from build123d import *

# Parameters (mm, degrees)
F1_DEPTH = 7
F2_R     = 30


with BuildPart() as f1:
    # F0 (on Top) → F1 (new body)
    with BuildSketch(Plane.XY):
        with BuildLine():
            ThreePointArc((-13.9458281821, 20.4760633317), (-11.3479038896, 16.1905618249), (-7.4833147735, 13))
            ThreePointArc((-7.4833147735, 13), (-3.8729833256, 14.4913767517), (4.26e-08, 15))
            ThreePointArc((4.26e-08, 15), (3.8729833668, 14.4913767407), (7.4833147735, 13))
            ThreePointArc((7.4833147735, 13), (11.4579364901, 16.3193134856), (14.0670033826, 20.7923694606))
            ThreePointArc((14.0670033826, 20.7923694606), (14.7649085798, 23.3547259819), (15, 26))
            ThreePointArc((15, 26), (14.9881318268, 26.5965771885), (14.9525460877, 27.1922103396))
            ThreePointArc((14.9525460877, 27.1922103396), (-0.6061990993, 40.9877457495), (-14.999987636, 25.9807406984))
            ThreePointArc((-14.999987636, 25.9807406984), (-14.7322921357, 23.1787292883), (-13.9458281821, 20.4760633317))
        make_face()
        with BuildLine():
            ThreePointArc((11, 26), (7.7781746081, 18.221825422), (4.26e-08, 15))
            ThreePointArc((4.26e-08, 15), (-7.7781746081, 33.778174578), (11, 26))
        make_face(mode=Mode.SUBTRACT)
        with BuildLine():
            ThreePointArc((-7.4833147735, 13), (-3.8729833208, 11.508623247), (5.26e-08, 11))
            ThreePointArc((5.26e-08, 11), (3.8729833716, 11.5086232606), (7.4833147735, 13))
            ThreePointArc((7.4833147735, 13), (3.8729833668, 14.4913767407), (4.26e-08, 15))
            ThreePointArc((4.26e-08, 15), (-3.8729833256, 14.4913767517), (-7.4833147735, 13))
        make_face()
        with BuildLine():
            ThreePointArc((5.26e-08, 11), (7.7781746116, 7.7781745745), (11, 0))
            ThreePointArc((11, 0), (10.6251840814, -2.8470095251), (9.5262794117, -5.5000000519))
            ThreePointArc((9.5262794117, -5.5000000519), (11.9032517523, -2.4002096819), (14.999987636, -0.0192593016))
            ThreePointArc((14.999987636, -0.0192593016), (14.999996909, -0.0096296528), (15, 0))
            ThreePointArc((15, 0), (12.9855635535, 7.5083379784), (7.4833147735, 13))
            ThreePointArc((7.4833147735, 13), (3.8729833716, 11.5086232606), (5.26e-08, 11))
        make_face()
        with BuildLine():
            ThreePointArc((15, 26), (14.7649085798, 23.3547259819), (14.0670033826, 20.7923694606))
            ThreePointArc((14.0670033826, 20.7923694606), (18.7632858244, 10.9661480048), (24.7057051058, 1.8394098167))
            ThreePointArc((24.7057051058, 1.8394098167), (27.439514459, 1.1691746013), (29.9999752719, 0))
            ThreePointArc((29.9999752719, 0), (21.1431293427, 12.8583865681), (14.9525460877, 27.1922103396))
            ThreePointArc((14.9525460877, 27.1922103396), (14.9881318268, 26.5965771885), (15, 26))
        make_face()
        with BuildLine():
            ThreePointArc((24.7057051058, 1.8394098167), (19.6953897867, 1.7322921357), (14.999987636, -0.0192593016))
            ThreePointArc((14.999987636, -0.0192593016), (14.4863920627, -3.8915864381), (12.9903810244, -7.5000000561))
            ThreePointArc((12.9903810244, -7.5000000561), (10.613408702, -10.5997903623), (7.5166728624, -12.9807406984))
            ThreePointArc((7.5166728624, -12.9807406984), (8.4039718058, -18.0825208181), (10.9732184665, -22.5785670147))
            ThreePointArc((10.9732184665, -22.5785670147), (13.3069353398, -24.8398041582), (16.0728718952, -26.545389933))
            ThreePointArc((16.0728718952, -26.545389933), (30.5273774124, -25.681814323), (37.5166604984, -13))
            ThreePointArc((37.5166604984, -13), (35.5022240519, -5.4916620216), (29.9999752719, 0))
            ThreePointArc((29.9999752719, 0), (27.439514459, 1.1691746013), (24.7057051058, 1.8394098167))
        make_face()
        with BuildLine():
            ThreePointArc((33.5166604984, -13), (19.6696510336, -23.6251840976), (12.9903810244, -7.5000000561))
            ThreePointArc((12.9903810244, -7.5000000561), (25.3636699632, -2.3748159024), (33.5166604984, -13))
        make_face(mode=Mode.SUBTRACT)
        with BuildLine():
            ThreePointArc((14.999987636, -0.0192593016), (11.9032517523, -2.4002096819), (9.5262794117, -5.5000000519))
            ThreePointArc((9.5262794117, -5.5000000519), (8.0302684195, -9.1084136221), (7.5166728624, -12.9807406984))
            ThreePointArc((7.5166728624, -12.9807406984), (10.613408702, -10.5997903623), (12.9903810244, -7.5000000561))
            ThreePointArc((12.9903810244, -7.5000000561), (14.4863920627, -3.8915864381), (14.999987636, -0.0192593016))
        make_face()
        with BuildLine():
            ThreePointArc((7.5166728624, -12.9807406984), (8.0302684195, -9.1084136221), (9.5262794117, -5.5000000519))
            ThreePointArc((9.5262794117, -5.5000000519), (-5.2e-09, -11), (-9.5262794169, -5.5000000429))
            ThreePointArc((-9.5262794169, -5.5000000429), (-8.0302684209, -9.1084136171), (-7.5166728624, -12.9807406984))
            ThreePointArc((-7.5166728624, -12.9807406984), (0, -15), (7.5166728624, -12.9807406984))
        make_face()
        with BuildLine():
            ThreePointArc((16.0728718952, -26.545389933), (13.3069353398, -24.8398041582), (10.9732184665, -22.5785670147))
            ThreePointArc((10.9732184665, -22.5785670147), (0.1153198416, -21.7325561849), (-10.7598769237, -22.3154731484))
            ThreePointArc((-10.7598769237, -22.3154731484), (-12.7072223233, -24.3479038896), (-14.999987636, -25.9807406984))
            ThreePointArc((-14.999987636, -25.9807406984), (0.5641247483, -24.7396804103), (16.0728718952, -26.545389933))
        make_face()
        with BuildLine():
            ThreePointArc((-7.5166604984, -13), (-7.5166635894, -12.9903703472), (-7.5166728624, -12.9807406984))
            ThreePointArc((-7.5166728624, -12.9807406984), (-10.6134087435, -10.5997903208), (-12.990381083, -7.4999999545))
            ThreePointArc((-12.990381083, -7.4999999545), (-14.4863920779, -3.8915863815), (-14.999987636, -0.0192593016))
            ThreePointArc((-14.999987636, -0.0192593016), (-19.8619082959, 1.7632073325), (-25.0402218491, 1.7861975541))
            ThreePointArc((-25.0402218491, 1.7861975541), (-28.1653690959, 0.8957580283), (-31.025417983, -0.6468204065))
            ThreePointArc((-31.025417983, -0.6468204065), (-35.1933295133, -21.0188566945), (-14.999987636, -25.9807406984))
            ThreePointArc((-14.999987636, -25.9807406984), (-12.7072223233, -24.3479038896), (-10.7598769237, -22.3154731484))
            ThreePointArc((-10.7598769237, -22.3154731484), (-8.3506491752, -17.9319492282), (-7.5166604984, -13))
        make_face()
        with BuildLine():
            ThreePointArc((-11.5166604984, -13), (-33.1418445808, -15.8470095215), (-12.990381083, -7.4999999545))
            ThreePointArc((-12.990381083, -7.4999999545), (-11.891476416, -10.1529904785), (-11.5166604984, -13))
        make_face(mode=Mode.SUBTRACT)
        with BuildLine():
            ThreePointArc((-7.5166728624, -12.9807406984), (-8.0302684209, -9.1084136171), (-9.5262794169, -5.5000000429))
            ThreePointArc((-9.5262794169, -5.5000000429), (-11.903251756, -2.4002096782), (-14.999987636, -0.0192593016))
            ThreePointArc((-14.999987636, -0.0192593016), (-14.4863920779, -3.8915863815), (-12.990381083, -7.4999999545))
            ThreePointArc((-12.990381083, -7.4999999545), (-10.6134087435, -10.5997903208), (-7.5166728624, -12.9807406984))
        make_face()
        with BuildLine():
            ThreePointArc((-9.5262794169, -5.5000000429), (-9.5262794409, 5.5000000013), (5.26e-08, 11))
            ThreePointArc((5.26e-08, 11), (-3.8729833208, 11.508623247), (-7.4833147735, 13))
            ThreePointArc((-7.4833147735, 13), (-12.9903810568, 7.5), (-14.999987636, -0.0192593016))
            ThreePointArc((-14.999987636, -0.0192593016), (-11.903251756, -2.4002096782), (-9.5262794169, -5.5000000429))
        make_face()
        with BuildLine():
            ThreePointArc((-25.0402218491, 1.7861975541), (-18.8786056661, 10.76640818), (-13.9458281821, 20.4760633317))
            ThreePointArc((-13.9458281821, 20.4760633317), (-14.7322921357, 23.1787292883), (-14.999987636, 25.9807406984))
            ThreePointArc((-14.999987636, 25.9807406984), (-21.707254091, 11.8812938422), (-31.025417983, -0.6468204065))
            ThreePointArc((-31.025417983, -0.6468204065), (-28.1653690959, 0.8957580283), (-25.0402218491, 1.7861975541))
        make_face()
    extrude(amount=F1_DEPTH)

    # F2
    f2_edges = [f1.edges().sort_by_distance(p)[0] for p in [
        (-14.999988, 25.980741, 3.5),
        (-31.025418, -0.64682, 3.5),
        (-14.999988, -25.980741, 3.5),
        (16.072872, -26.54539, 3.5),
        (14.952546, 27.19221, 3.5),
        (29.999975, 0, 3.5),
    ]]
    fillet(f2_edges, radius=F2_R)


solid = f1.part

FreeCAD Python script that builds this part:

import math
import FreeCAD as App
import Part
import Sketcher

V = App.Vector
Q = App.Units.Quantity


def edges_at(feature, points):
    """Names of the edges that pass closest to the given points."""
    edges = feature.Shape.Edges
    near = lambda p: min(range(len(edges)), key=lambda i: edges[i].distToShape(Part.Vertex(*p))[0])
    return sorted({f"Edge{near(p) + 1}" for p in points})

doc = App.newDocument("Part")
body = doc.addObject("PartDesign::Body", "Body")

# Sketch on XY plane
sketch1 = doc.addObject("Sketcher::SketchObject", "Sketch")
body.addObject(sketch1)
sketch1.AttachmentSupport = (doc.XY_Plane, [""])
sketch1.MapMode = "FlatFace"
sketch1.addGeometry(Part.ArcOfCircle(Part.Circle(V(-22.51666, -13, 0), V(0, 0, 1), 15), math.radians(124.558716), math.radians(300.073565)), False)
sketch1.addGeometry(Part.ArcOfCircle(Part.Circle(V(-0.889378, -104.726475, 0), V(0, 0, 1), 80), math.radians(77.758768), math.radians(100.159128)), False)
sketch1.addGeometry(Part.ArcOfCircle(Part.Circle(V(22.51666, -13, 0), V(0, 0, 1), 15), math.radians(-115.441284), math.radians(0)), False)
sketch1.addGeometry(Part.ArcOfCircle(Part.Circle(V(22.51666, -13, 0), V(0, 0, 1), 15), math.radians(0), math.radians(60.073565)), False)
sketch1.addGeometry(Part.ArcOfCircle(Part.Circle(V(91.140477, 51.593014, 0), V(0, 0, 1), 80), math.radians(-162.241232), math.radians(-139.840872)), False)
sketch1.addGeometry(Part.ArcOfCircle(Part.Circle(V(0, 26, 0), V(0, 0, 1), 15), math.radians(4.558716), math.radians(180.073565)), False)
sketch1.addGeometry(Part.ArcOfCircle(Part.Circle(V(-90.251099, 53.133461, 0), V(0, 0, 1), 80), math.radians(-42.241232), math.radians(-19.840872)), False)
sketch1.addGeometry(Part.ArcOfCircle(Part.Circle(V(0, 0, 0), V(0, 0, 1), 11), math.radians(-150), math.radians(-30)), False)
sketch1.addGeometry(Part.ArcOfCircle(Part.Circle(V(0, 0, 0), V(0, 0, 1), 11), math.radians(0), math.radians(210)), False)
sketch1.addGeometry(Part.ArcOfCircle(Part.Circle(V(0, 0, 0), V(0, 0, 1), 11), math.radians(-30), math.radians(0)), False)
sketch1.addGeometry(Part.ArcOfCircle(Part.Circle(V(-22.51666, -13, 0), V(0, 0, 1), 15), math.radians(59.926435), math.radians(99.685355)), False)
sketch1.addGeometry(Part.ArcOfCircle(Part.Circle(V(-90.251099, 53.133461, 0), V(0, 0, 1), 83), math.radians(-38.217014), math.radians(-23.170126)), False)
sketch1.addGeometry(Part.ArcOfCircle(Part.Circle(V(0, 26, 0), V(0, 0, 1), 15), math.radians(-158.391502), math.radians(-119.926435)), False)
sketch1.addGeometry(Part.ArcOfCircle(Part.Circle(V(0, 0, 0), V(0, 0, 1), 15), math.radians(119.926435), math.radians(180.073565)), False)
sketch1.addGeometry(Part.Circle(V(-22.51666, -13, 0), V(0, 0, 1), 11), False)
sketch1.addGeometry(Part.ArcOfCircle(Part.Circle(V(-22.516693, -13, 0), V(0, 0, 1), 15.000033), math.radians(0), math.radians(0.073565)), False)
sketch1.addGeometry(Part.ArcOfCircle(Part.Circle(V(0, 0, 0), V(0, 0, 1), 15), math.radians(-120.073565), math.radians(-59.926435)), False)
sketch1.addGeometry(Part.ArcOfCircle(Part.Circle(V(22.51666, -13, 0), V(0, 0, 1), 15), math.radians(179.926435), math.radians(219.685355)), False)
sketch1.addGeometry(Part.ArcOfCircle(Part.Circle(V(-0.889378, -104.726475, 0), V(0, 0, 1), 83), math.radians(81.782986), math.radians(96.829874)), False)
sketch1.addGeometry(Part.ArcOfCircle(Part.Circle(V(-22.51666, -13, 0), V(0, 0, 1), 15), math.radians(-38.391502), math.radians(0)), False)
sketch1.addGeometry(Part.ArcOfCircle(Part.Circle(V(22.51666, -13, 0), V(0, 0, 1), 11), math.radians(150), math.radians(360)), False)
sketch1.addGeometry(Part.ArcOfCircle(Part.Circle(V(22.51666, -13, 0), V(0, 0, 1), 11), math.radians(0), math.radians(150)), False)
sketch1.addGeometry(Part.ArcOfCircle(Part.Circle(V(22.51666, -13, 0), V(0, 0, 1), 15), math.radians(81.608498), math.radians(120.073565)), False)
sketch1.addGeometry(Part.ArcOfCircle(Part.Circle(V(-0.000033, 0, 0), V(0, 0, 1), 15.000033), math.radians(-0.073565), math.radians(0)), False)
sketch1.addGeometry(Part.ArcOfCircle(Part.Circle(V(0, 0, 0), V(0, 0, 1), 15), math.radians(0), math.radians(60.073565)), False)
sketch1.addGeometry(Part.ArcOfCircle(Part.Circle(V(0, 26, 0), V(0, 0, 1), 15), math.radians(-60.073565), math.radians(-20.314645)), False)
sketch1.addGeometry(Part.ArcOfCircle(Part.Circle(V(91.140477, 51.593014, 0), V(0, 0, 1), 83), math.radians(-158.217014), math.radians(-143.170126)), False)
sketch1.addGeometry(Part.Circle(V(0, 26, 0), V(0, 0, 1), 11), False)
sketch1.addConstraint(Sketcher.Constraint("Coincident", 0, 2, 1, 2))
sketch1.addConstraint(Sketcher.Constraint("Coincident", 1, 1, 2, 1))
sketch1.addConstraint(Sketcher.Constraint("Tangent", 2, 2, 3, 1))
sketch1.addConstraint(Sketcher.Constraint("Coincident", 3, 2, 4, 2))
sketch1.addConstraint(Sketcher.Constraint("Coincident", 4, 1, 5, 1))
sketch1.addConstraint(Sketcher.Constraint("Coincident", 5, 2, 6, 2))
sketch1.addConstraint(Sketcher.Constraint("Coincident", 6, 1, 0, 1))
sketch1.addConstraint(Sketcher.Constraint("Tangent", 7, 1, 8, 2))
sketch1.addConstraint(Sketcher.Constraint("Tangent", 8, 1, 9, 2))
sketch1.addConstraint(Sketcher.Constraint("Tangent", 9, 1, 7, 2))
sketch1.addConstraint(Sketcher.Constraint("Coincident", 10, 2, 11, 1))
sketch1.addConstraint(Sketcher.Constraint("Coincident", 11, 2, 12, 1))
sketch1.addConstraint(Sketcher.Constraint("Coincident", 12, 2, 13, 1))
sketch1.addConstraint(Sketcher.Constraint("Coincident", 13, 2, 10, 1))
sketch1.addConstraint(Sketcher.Constraint("Coincident", 15, 2, 16, 1))
sketch1.addConstraint(Sketcher.Constraint("Coincident", 16, 2, 17, 1))
sketch1.addConstraint(Sketcher.Constraint("Coincident", 17, 2, 18, 1))
sketch1.addConstraint(Sketcher.Constraint("Coincident", 18, 2, 19, 1))
sketch1.addConstraint(Sketcher.Constraint("Tangent", 19, 2, 15, 1))
sketch1.addConstraint(Sketcher.Constraint("Tangent", 20, 1, 21, 2))
sketch1.addConstraint(Sketcher.Constraint("Coincident", 21, 1, 20, 2))
sketch1.addConstraint(Sketcher.Constraint("Coincident", 22, 2, 23, 1))
sketch1.addConstraint(Sketcher.Constraint("Tangent", 23, 2, 24, 1))
sketch1.addConstraint(Sketcher.Constraint("Coincident", 24, 2, 25, 1))
sketch1.addConstraint(Sketcher.Constraint("Coincident", 25, 2, 26, 1))
sketch1.addConstraint(Sketcher.Constraint("Coincident", 26, 2, 22, 1))
sketch1.addConstraint(Sketcher.Constraint("Coincident", 7, 3, -1, 1))
sketch1.addConstraint(Sketcher.Constraint("Coincident", 13, 3, -1, 1))
sketch1.addConstraint(Sketcher.Constraint("Coincident", 16, 3, -1, 1))
sketch1.addConstraint(Sketcher.Constraint("Coincident", 24, 3, -1, 1))
sketch1.addConstraint(Sketcher.Constraint("Coincident", 10, 3, 0, 3))
sketch1.addConstraint(Sketcher.Constraint("Coincident", 11, 3, 6, 3))
sketch1.addConstraint(Sketcher.Constraint("Coincident", 12, 3, 5, 3))
sketch1.addConstraint(Sketcher.Constraint("Coincident", 14, 3, 0, 3))
sketch1.addConstraint(Sketcher.Constraint("Coincident", 17, 3, 2, 3))
sketch1.addConstraint(Sketcher.Constraint("Coincident", 18, 3, 1, 3))
sketch1.addConstraint(Sketcher.Constraint("Coincident", 19, 3, 0, 3))
sketch1.addConstraint(Sketcher.Constraint("Coincident", 20, 3, 2, 3))
sketch1.addConstraint(Sketcher.Constraint("Coincident", 22, 3, 2, 3))
sketch1.addConstraint(Sketcher.Constraint("Coincident", 25, 3, 5, 3))
sketch1.addConstraint(Sketcher.Constraint("Coincident", 26, 3, 4, 3))
sketch1.addConstraint(Sketcher.Constraint("Coincident", 27, 3, 5, 3))
sketch1.addConstraint(Sketcher.Constraint("Equal", 0, 2))
sketch1.addConstraint(Sketcher.Constraint("Equal", 2, 3))
sketch1.addConstraint(Sketcher.Constraint("Equal", 1, 4))
sketch1.addConstraint(Sketcher.Constraint("Equal", 3, 5))
sketch1.addConstraint(Sketcher.Constraint("Equal", 4, 6))
sketch1.addConstraint(Sketcher.Constraint("Equal", 5, 10))
sketch1.addConstraint(Sketcher.Constraint("Equal", 10, 12))
sketch1.addConstraint(Sketcher.Constraint("Equal", 12, 13))
sketch1.addConstraint(Sketcher.Constraint("Equal", 9, 14))
sketch1.addConstraint(Sketcher.Constraint("Equal", 13, 16))
sketch1.addConstraint(Sketcher.Constraint("Equal", 16, 17))
sketch1.addConstraint(Sketcher.Constraint("Equal", 11, 18))
sketch1.addConstraint(Sketcher.Constraint("Equal", 17, 19))
sketch1.addConstraint(Sketcher.Constraint("Equal", 14, 20))
sketch1.addConstraint(Sketcher.Constraint("Equal", 19, 22))
sketch1.addConstraint(Sketcher.Constraint("Equal", 15, 23))
sketch1.addConstraint(Sketcher.Constraint("Equal", 22, 24))
sketch1.addConstraint(Sketcher.Constraint("Equal", 24, 25))
sketch1.addConstraint(Sketcher.Constraint("Equal", 18, 26))
sketch1.addConstraint(Sketcher.Constraint("Equal", 21, 27))
sketch1.addConstraint(Sketcher.Constraint("Symmetric", 0, 3, 2, 3, -2))
sketch1.addConstraint(Sketcher.Constraint("Symmetric", 0, 2, 5, 2, -1))
sketch1.addConstraint(Sketcher.Constraint("PointOnObject", 5, 3, -2))
sketch1.addConstraint(Sketcher.Constraint("PointOnObject", 3, 2, -1))
sketch1.addConstraint(Sketcher.Constraint("PointOnObject", 8, 1, -1))
sketch1.addConstraint(Sketcher.Constraint("PointOnObject", 23, 2, -1))
sketch1.addConstraint(Sketcher.Constraint("Horizontal", 22, 3, 2, 2))
sketch1.addConstraint(Sketcher.Constraint("Horizontal", 7, 1, 9, 1))
sketch1.addConstraint(Sketcher.Constraint("Horizontal", 2, 2, 19, 2))
sketch1.addConstraint(Sketcher.Constraint("Horizontal", 19, 2, 21, 1))
sketch1.addConstraint(Sketcher.Constraint("Diameter", 14, Q("22 mm")))
sketch1.addConstraint(Sketcher.Constraint("Radius", 0, Q("15 mm")))
sketch1.addConstraint(Sketcher.Constraint("Radius", 1, Q("80 mm")))
sketch1.addConstraint(Sketcher.Constraint("Radius", 11, Q("83 mm")))
sketch1.addConstraint(Sketcher.Constraint("DistanceY", 0, 3, -1, 1, Q("13 mm")))
sketch1.addConstraint(Sketcher.Constraint("DistanceY", -1, 1, 5, 3, Q("26 mm")))
sketch1.addConstraint(Sketcher.Constraint("DistanceY", 20, 1, 9, 1, Q("2 mm")))
sketch1.addConstraint(Sketcher.Constraint("DistanceY", 7, 1, -1, 1, Q("5.5 mm")))
sketch1.addConstraint(Sketcher.Constraint("Radius", 15, Q("15.000033 mm")))
sketch1.addConstraint(Sketcher.Constraint("DistanceX", 6, 3, -1, 1, Q("90.251099 mm")))
sketch1.addConstraint(Sketcher.Constraint("DistanceX", 9, 1, 20, 1, Q("3.464102 mm")))
sketch1.addConstraint(Sketcher.Constraint("DistanceX", -1, 1, 1, 1, Q("16.072872 mm")))
sketch1.addConstraint(Sketcher.Constraint("DistanceY", -1, 1, 4, 1, Q("27.19221 mm")))
pad1 = doc.addObject("PartDesign::Pad", "Pad")
body.addObject(pad1)
pad1.Profile = sketch1
pad1.Length = 7
doc.recompute()

fillet = doc.addObject("PartDesign::Fillet", "Fillet")
body.addObject(fillet)
fillet.Base = (pad1, edges_at(pad1, [
    (-15, 25.981, 3.5),
    (-31.025, -0.647, 3.5),
    (-15, -25.981, 3.5),
    (16.073, -26.545, 3.5),
    (14.953, 27.192, 3.5),
    (30, 0, 3.5),
]))
fillet.Radius = 30

doc.recompute()
